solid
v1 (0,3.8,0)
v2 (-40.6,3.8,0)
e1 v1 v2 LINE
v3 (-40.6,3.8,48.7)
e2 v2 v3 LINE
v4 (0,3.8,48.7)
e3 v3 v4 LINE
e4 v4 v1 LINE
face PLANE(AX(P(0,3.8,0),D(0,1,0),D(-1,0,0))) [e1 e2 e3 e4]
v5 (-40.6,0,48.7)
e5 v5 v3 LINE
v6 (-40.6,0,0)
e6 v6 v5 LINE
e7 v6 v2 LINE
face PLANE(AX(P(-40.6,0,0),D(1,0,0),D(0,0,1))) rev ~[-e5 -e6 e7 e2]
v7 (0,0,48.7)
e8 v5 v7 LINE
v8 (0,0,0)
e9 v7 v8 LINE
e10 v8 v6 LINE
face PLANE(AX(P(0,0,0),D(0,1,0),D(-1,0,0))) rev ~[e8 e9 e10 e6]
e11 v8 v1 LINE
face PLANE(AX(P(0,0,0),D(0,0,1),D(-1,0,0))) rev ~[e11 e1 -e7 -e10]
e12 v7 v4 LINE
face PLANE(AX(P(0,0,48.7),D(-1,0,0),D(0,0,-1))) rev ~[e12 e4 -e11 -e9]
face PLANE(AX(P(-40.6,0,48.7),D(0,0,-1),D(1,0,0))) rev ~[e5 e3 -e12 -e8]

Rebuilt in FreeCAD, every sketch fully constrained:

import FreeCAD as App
import Part
import Sketcher

V = App.Vector
Q = App.Units.Quantity


def add_polygon(sketch, points):
    """Adds a closed chain of lines whose ends are joined by coincident constraints."""
    first, n = sketch.GeometryCount, len(points)
    for a, b in zip(points, points[1:] + points[:1]):
        sketch.addGeometry(Part.LineSegment(App.Vector(*a, 0), App.Vector(*b, 0)), False)
    for i in range(n):
        sketch.addConstraint(Sketcher.Constraint("Coincident", first + i, 2, first + (i + 1) % n, 1))

doc = App.newDocument("Part")
params = doc.addObject("Spreadsheet::Sheet", "Params")
for row, (alias, value) in enumerate([
    ("sketch1_width", "40.6 mm"),
    ("sketch1_height", "48.7 mm"),
    ("pad1_length", "3.8 mm"),
], start=1):
    params.set(f"A{row}", alias)
    params.set(f"B{row}", "=" + value)
    params.setAlias(f"B{row}", alias)

body = doc.addObject("PartDesign::Body", "Body")

# Sketch on XZ plane
sketch1 = body.newObject("Sketcher::SketchObject", "Sketch")
sketch1.AttachmentSupport = (doc.getObject("XZ_Plane"), [""])
sketch1.MapMode = "FlatFace"
add_polygon(sketch1, [(-40.6, 0), (-40.6, 48.7), (0, 48.7), (0, 0)])  # lines 0-3
sketch1.addConstraint([
    Sketcher.Constraint("Vertical", 0),
    Sketcher.Constraint("Horizontal", 1),
    Sketcher.Constraint("Vertical", 2),
    Sketcher.Constraint("Horizontal", 3),
    Sketcher.Constraint("Coincident", 2, 2, -1, 1),
    Sketcher.Constraint("DistanceX", 1, 1, 1, 2, Q("40.6 mm")),
    Sketcher.Constraint("DistanceY", 0, 1, 0, 2, Q("48.7 mm")),
])
sketch1.setExpression("Constraints[9]", "Params.sketch1_width")
sketch1.setExpression("Constraints[10]", "Params.sketch1_height")
pad1 = body.newObject("PartDesign::Pad", "Pad")
pad1.Profile = sketch1
pad1.setExpression("Length", "Params.pad1_length")
pad1.Reversed = True

doc.recompute()
